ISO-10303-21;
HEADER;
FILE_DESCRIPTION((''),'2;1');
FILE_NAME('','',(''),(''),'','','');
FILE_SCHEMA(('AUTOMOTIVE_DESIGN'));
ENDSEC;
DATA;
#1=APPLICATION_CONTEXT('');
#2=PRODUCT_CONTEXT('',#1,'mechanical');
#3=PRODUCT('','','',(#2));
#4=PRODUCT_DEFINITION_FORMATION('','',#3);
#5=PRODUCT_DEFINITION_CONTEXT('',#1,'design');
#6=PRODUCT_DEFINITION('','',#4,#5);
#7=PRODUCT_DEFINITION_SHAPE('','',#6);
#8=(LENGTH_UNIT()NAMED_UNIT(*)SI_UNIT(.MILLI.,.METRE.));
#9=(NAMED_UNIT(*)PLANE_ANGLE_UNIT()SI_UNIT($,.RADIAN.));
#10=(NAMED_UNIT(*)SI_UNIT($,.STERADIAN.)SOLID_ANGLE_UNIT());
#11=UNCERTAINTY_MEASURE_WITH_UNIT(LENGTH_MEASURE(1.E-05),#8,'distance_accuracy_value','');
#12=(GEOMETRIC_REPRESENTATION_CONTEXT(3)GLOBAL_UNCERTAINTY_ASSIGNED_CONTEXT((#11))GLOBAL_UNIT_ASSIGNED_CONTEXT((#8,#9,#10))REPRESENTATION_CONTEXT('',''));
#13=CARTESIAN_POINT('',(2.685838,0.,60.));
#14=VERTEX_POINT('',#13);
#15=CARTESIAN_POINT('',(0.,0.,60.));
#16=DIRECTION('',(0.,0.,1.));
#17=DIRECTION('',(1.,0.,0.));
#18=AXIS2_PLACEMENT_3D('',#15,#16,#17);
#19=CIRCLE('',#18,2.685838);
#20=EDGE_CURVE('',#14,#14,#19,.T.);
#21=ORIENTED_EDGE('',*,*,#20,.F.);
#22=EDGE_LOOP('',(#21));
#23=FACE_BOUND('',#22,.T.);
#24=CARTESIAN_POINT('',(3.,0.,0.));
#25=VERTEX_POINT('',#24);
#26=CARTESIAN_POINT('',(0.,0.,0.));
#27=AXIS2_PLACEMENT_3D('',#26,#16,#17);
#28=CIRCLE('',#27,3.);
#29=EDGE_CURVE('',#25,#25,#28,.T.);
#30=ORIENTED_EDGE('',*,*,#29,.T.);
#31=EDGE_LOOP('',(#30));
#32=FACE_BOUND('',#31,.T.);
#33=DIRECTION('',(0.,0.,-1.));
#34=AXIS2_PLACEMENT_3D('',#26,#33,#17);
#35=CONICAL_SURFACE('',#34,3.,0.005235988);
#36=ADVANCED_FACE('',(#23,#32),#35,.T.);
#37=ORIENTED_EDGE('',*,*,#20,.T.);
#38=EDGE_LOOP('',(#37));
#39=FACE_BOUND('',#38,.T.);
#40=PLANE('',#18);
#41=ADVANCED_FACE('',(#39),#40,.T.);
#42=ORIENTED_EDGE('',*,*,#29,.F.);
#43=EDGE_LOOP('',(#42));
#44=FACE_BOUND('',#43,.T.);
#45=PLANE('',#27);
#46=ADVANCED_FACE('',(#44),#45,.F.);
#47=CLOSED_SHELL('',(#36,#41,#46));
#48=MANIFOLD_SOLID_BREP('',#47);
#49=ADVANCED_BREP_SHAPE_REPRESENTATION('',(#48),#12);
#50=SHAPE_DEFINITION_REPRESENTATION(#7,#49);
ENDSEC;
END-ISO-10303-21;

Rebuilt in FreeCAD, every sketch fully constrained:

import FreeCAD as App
import Part
import Sketcher
from FreeCAD import Vector

doc = App.newDocument("Part")
body = doc.addObject("PartDesign::Body", "Body")

# Sketch on XY plane
sketch1 = body.newObject("Sketcher::SketchObject", "Sketch")
sketch1.AttachmentSupport = (doc.getObject("XY_Plane"), [""])
sketch1.MapMode = "FlatFace"
sketch1.addGeometry(Part.Circle(Vector(0, 0, 0), Vector(0, 0, 1), 3), False)
sketch1.addConstraint(Sketcher.Constraint("Coincident", 0, 3, -1, 1))
sketch1.addConstraint(Sketcher.Constraint("Diameter", 0, 6.0))
pad1 = body.newObject("PartDesign::Pad", "Pad")
pad1.Profile = sketch1
pad1.Length = 60
pad1.TaperAngle = -0.3

doc.recompute()
